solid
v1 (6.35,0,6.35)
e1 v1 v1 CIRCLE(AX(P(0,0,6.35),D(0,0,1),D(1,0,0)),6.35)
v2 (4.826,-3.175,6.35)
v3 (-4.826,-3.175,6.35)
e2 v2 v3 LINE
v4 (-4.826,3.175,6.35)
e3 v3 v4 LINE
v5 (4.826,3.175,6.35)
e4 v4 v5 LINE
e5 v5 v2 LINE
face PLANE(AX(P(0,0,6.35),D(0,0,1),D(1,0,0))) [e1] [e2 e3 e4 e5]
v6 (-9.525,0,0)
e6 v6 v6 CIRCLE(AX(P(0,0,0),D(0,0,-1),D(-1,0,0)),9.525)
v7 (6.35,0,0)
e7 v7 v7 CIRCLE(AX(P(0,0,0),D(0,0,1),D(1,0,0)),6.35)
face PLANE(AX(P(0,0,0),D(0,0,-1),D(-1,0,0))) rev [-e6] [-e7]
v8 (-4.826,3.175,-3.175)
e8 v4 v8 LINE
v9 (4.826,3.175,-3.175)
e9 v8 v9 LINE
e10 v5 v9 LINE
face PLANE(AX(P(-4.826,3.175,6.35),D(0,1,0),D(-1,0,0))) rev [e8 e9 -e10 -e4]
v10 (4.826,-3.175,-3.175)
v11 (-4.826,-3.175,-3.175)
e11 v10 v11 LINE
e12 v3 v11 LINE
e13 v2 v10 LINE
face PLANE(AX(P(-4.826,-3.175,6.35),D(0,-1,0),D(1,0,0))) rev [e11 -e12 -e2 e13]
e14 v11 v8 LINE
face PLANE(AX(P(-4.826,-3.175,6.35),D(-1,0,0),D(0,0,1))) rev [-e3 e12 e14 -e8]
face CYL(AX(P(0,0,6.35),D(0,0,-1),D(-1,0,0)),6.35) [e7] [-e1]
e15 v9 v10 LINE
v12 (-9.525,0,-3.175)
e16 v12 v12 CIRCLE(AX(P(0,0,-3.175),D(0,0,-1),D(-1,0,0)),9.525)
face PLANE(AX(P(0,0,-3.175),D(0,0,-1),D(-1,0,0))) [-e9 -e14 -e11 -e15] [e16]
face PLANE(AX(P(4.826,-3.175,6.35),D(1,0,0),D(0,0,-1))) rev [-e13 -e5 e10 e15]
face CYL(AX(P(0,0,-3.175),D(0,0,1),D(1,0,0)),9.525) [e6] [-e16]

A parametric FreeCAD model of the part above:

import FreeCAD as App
import Part
import Sketcher
Q = App.Units.Quantity


def add_polygon(sketch, points):
    """Adds a closed chain of lines whose ends are joined by coincident constraints."""
    first, n = sketch.GeometryCount, len(points)
    for a, b in zip(points, points[1:] + points[:1]):
        sketch.addGeometry(Part.LineSegment(App.Vector(*a, 0), App.Vector(*b, 0)), False)
    for i in range(n):
        sketch.addConstraint(Sketcher.Constraint("Coincident", first + i, 2, first + (i + 1) % n, 1))

doc = App.newDocument("Part")
body = doc.addObject("PartDesign::Body", "Body")

# Sketch on XY plane
sketch1 = doc.addObject("Sketcher::SketchObject", "Sketch")
body.addObject(sketch1)
sketch1.AttachmentSupport = (doc.XY_Plane, [""])
sketch1.MapMode = "FlatFace"
sketch1.addGeometry(Part.Circle(App.Vector(0, 0, 0), App.Vector(0, 0, 1), 6), False)
sketch1.addConstraint([
    Sketcher.Constraint("Coincident", 0, 3, -1, 1),
    Sketcher.Constraint("Diameter", 0, Q("0.5 in")),
])
pad1 = doc.addObject("PartDesign::Pad", "Pad")
body.addObject(pad1)
pad1.Profile = sketch1
pad1.Length = Q("0.25 in")

# Sketch on XY plane
sketch2 = doc.addObject("Sketcher::SketchObject", "Sketch001")
body.addObject(sketch2)
sketch2.AttachmentSupport = (doc.XY_Plane, [""])
sketch2.MapMode = "FlatFace"
sketch2.addGeometry(Part.Circle(App.Vector(0, 0, 0), App.Vector(0, 0, 1), 10), False)
sketch2.addConstraint([
    Sketcher.Constraint("Coincident", 0, 3, -1, 1),
    Sketcher.Constraint("Diameter", 0, Q("0.75 in")),
])
pad2 = doc.addObject("PartDesign::Pad", "Pad001")
body.addObject(pad2)
pad2.Profile = sketch2
pad2.Length = Q("0.125 in")
pad2.Reversed = True

# Sketch on XY plane
sketch3 = doc.addObject("Sketcher::SketchObject", "Sketch002")
body.addObject(sketch3)
sketch3.AttachmentSupport = (doc.XY_Plane, [""])
sketch3.MapMode = "FlatFace"
sketch3.AttachmentOffset = App.Placement(App.Vector(0, 0, -0.125 * 25.4), App.Rotation())
add_polygon(sketch3, [(5, 3), (5, -3), (-5, -3), (-5, 3)])  # lines 0-3
sketch3.addConstraint([
    Sketcher.Constraint("Vertical", 0),
    Sketcher.Constraint("Horizontal", 1),
    Sketcher.Constraint("Vertical", 2),
    Sketcher.Constraint("Horizontal", 3),
    Sketcher.Constraint("Symmetric", 0, 2, 2, 2, -1, 1),
    Sketcher.Constraint("DistanceX", 1, 2, 1, 1, Q("0.38 in")),
    Sketcher.Constraint("DistanceY", 0, 2, 0, 1, Q("0.25 in")),
])
pocket1 = doc.addObject("PartDesign::Pocket", "Pocket")
body.addObject(pocket1)
pocket1.Profile = sketch3
pocket1.Type = "ThroughAll"
pocket1.Reversed = True

doc.recompute()
